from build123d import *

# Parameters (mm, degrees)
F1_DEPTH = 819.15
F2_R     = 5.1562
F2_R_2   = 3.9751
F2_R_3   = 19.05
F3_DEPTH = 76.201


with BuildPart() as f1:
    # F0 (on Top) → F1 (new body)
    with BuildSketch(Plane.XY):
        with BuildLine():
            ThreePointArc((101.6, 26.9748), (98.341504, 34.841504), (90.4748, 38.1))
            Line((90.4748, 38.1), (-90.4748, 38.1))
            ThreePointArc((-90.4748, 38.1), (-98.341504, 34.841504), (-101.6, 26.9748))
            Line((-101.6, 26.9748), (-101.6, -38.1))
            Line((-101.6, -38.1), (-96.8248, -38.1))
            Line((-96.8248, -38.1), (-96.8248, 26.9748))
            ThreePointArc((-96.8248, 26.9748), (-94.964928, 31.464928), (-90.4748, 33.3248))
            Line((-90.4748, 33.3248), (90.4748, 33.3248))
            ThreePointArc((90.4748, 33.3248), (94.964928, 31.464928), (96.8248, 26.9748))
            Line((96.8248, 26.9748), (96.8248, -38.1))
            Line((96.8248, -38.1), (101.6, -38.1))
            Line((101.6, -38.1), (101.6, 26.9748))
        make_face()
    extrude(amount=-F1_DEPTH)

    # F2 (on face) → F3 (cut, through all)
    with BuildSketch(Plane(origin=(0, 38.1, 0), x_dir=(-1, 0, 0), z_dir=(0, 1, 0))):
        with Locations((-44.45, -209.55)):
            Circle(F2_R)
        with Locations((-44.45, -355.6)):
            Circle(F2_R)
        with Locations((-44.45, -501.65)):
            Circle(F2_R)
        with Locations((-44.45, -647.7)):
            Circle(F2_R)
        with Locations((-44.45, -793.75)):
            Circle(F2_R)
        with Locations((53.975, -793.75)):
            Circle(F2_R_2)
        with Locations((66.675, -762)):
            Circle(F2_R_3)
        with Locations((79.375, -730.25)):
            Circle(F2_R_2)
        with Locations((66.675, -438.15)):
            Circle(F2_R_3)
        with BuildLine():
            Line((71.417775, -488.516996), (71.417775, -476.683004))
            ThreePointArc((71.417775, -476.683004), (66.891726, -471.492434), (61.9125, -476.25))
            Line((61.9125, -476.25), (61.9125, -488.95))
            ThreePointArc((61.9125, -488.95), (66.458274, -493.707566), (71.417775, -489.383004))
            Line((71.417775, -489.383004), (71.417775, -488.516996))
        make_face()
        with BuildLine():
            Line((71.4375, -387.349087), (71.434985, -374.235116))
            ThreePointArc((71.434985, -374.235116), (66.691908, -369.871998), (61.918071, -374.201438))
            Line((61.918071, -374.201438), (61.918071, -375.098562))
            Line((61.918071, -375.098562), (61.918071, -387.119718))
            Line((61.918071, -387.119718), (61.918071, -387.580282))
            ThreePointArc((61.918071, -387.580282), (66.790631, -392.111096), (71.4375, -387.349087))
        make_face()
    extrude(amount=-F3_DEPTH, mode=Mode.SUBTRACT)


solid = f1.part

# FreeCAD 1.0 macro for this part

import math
import FreeCAD as App
import Part
import Sketcher
from FreeCAD import Vector
Q = App.Units.Quantity

doc = App.newDocument("Part")
body = doc.addObject("PartDesign::Body", "Body")

# Sketch on XY plane
sketch1 = body.newObject("Sketcher::SketchObject", "Sketch")
sketch1.AttachmentSupport = (doc.getObject("XY_Plane"), [""])
sketch1.MapMode = "FlatFace"
sketch1.addGeometry([
    Part.ArcOfCircle(Part.Circle(Vector(90.5, 27, 0), Vector(0, 0, 1), 11.1), math.radians(0), math.radians(90)),  # 0
    Part.LineSegment(Vector(90.5, 38.1, 0), Vector(-90.5, 38.1, 0)),  # 1
    Part.ArcOfCircle(Part.Circle(Vector(-90.5, 27, 0), Vector(0, 0, 1), 11.1), math.radians(90), math.radians(180)),  # 2
    Part.LineSegment(Vector(-101.6, 27, 0), Vector(-101.6, -38.1, 0)),  # 3
    Part.LineSegment(Vector(-101.6, -38.1, 0), Vector(-96.8, -38.1, 0)),  # 4
    Part.LineSegment(Vector(-96.8, -38.1, 0), Vector(-96.8, 27, 0)),  # 5
    Part.ArcOfCircle(Part.Circle(Vector(-90.5, 27, 0), Vector(0, 0, 1), 6.4), math.radians(90), math.radians(180)),  # 6
    Part.LineSegment(Vector(-90.5, 33.3, 0), Vector(90.5, 33.3, 0)),  # 7
    Part.ArcOfCircle(Part.Circle(Vector(90.5, 27, 0), Vector(0, 0, 1), 6.4), math.radians(0), math.radians(90)),  # 8
    Part.LineSegment(Vector(96.8, 27, 0), Vector(96.8, -38.1, 0)),  # 9
    Part.LineSegment(Vector(96.8, -38.1, 0), Vector(101.6, -38.1, 0)),  # 10
    Part.LineSegment(Vector(101.6, -38.1, 0), Vector(101.6, 27, 0)),  # 11
], False)
sketch1.addConstraint([
    Sketcher.Constraint("Tangent", 0, 2, 1, 1),
    Sketcher.Constraint("Tangent", 1, 2, 2, 1),
    Sketcher.Constraint("Tangent", 2, 2, 3, 1),
    Sketcher.Constraint("Coincident", 3, 2, 4, 1),
    Sketcher.Constraint("Coincident", 4, 2, 5, 1),
    Sketcher.Constraint("Tangent", 5, 2, 6, 2),
    Sketcher.Constraint("Tangent", 6, 1, 7, 1),
    Sketcher.Constraint("Tangent", 7, 2, 8, 2),
    Sketcher.Constraint("Tangent", 8, 1, 9, 1),
    Sketcher.Constraint("Coincident", 9, 2, 10, 1),
    Sketcher.Constraint("Coincident", 10, 2, 11, 1),
    Sketcher.Constraint("Tangent", 11, 2, 0, 1),
    Sketcher.Constraint("Horizontal", 1),
    Sketcher.Constraint("Vertical", 3),
    Sketcher.Constraint("Horizontal", 4),
    Sketcher.Constraint("Vertical", 5),
    Sketcher.Constraint("Horizontal", 7),
    Sketcher.Constraint("Vertical", 9),
    Sketcher.Constraint("Horizontal", 10),
    Sketcher.Constraint("Vertical", 11),
    Sketcher.Constraint("Coincident", 6, 3, 2, 3),
    Sketcher.Constraint("Coincident", 8, 3, 0, 3),
    Sketcher.Constraint("Equal", 0, 2),
    Sketcher.Constraint("Symmetric", 4, 2, 9, 2, -2),
    Sketcher.Constraint("Radius", 6, Q("0.25 in")),
    Sketcher.Constraint("DistanceX", 2, 2, -1, 1, Q("4 in")),
    Sketcher.Constraint("Radius", 0, Q("0.438 in")),
    Sketcher.Constraint("DistanceY", 3, 2, 1, 2, Q("3 in")),
    Sketcher.Constraint("DistanceY", -1, 1, 0, 2, Q("1.5 in")),
])
pad1 = body.newObject("PartDesign::Pad", "Pad")
pad1.Profile = sketch1
pad1.Length = Q("32.25 in")
pad1.Reversed = True

# Sketch on XZ plane
sketch2 = body.newObject("Sketcher::SketchObject", "Sketch001")
sketch2.AttachmentSupport = (doc.getObject("XZ_Plane"), [""])
sketch2.MapMode = "FlatFace"
sketch2.AttachmentOffset = App.Placement(Vector(0, 0, -1.5 * 25.4), App.Rotation())
sketch2.addGeometry([
    Part.Circle(Vector(44.5, -209.6, 0), Vector(0, 0, 1), 5.2),  # 0
    Part.Circle(Vector(44.5, -355.6, 0), Vector(0, 0, 1), 5.2),  # 1
    Part.Circle(Vector(44.5, -501.6, 0), Vector(0, 0, 1), 5.2),  # 2
    Part.Circle(Vector(44.5, -647.7, 0), Vector(0, 0, 1), 5.2),  # 3
    Part.Circle(Vector(44.5, -793.8, 0), Vector(0, 0, 1), 5.2),  # 4
    Part.Circle(Vector(-54, -793.8, 0), Vector(0, 0, 1), 4),  # 5
    Part.Circle(Vector(-66.7, -762, 0), Vector(0, 0, 1), 19.1),  # 6
    Part.Circle(Vector(-79.4, -730.2, 0), Vector(0, 0, 1), 4),  # 7
    Part.Circle(Vector(-66.7, -438.1, 0), Vector(0, 0, 1), 19.1),  # 8
    Part.ArcOfCircle(Part.Circle(Vector(-66.7, -476.3, 0), Vector(0, 0, 1), 4.8), math.radians(0), math.radians(185)),  # 9
    Part.LineSegment(Vector(-61.9, -476.2, 0), Vector(-61.9, -488.9, 0)),  # 10
    Part.ArcOfCircle(Part.Circle(Vector(-66.7, -488.9, 0), Vector(0, 0, 1), 4.8), math.radians(-175), math.radians(0)),  # 11
    Part.LineSegment(Vector(-71.4, -489.4, 0), Vector(-71.4, -476.7, 0)),  # 12
    Part.LineSegment(Vector(-71.4, -387.3, 0), Vector(-71.4, -374.2, 0)),  # 13
    Part.ArcOfCircle(Part.Circle(Vector(-66.7, -374.6, 0), Vector(0, 0, 1), 4.8), math.radians(5), math.radians(175)),  # 14
    Part.LineSegment(Vector(-61.9, -374.2, 0), Vector(-61.9, -387.6, 0)),  # 15
    Part.ArcOfCircle(Part.Circle(Vector(-66.7, -387.4, 0), Vector(0, 0, 1), 4.8), math.radians(180), math.radians(357)),  # 16
], False)
sketch2.addConstraint([
    Sketcher.Constraint("Tangent", 9, 1, 10, 1),
    Sketcher.Constraint("Tangent", 10, 2, 11, 2),
    Sketcher.Constraint("Coincident", 11, 1, 12, 1),
    Sketcher.Constraint("Coincident", 12, 2, 9, 2),
    Sketcher.Constraint("Coincident", 13, 2, 14, 2),
    Sketcher.Constraint("Coincident", 14, 1, 15, 1),
    Sketcher.Constraint("Coincident", 15, 2, 16, 2),
    Sketcher.Constraint("Tangent", 16, 1, 13, 1),
    Sketcher.Constraint("Vertical", 10),
    Sketcher.Constraint("Vertical", 12),
    Sketcher.Constraint("Vertical", 15),
    Sketcher.Constraint("Equal", 0, 1),
    Sketcher.Constraint("Equal", 1, 2),
    Sketcher.Constraint("Equal", 2, 3),
    Sketcher.Constraint("Equal", 3, 4),
    Sketcher.Constraint("Equal", 5, 7),
    Sketcher.Constraint("Equal", 6, 8),
    Sketcher.Constraint("Equal", 9, 11),
    Sketcher.Constraint("Equal", 11, 16),
    Sketcher.Constraint("Horizontal", 4, 3, 5, 3),
    Sketcher.Constraint("Vertical", 0, 3, 1, 3),
    Sketcher.Constraint("Vertical", 1, 3, 2, 3),
    Sketcher.Constraint("Vertical", 2, 3, 3, 3),
    Sketcher.Constraint("Vertical", 3, 3, 4, 3),
    Sketcher.Constraint("Vertical", 6, 3, 8, 3),
    Sketcher.Constraint("Vertical", 8, 3, 9, 3),
    Sketcher.Constraint("Vertical", 11, 3, 14, 3),
    Sketcher.Constraint("Vertical", 14, 3, 16, 3),
    Sketcher.Constraint("Diameter", 6, Q("1.5 in")),
    Sketcher.Constraint("Diameter", 0, Q("0.406 in")),
    Sketcher.Constraint("Diameter", 5, Q("0.313 in")),
    Sketcher.Constraint("DistanceY", 10, 2, 10, 1, Q("0.5 in")),
    Sketcher.Constraint("DistanceY", 1, 3, -1, 1, Q("14 in")),
    Sketcher.Constraint("DistanceY", 6, 3, -1, 1, Q("30 in")),
    Sketcher.Constraint("Radius", 9, Q("0.1875 in")),
    Sketcher.Constraint("DistanceY", 4, 3, 0, 3, Q("23 in")),
    Sketcher.Constraint("DistanceX", 7, 3, 5, 3, Q("1 in")),
    Sketcher.Constraint("DistanceY", 7, 3, 2, 3, Q("9 in")),
    Sketcher.Constraint("DistanceY", 8, 3, 0, 3, Q("9 in")),
    Sketcher.Constraint("DistanceY", 2, 3, 9, 3, Q("1 in")),
    Sketcher.Constraint("DistanceY", 11, 3, 8, 3, Q("2 in")),
    Sketcher.Constraint("DistanceY", 9, 3, 14, 3, Q("4 in")),
    Sketcher.Constraint("DistanceY", 8, 3, 16, 3, Q("2 in")),
    Sketcher.Constraint("DistanceY", 3, 3, -1, 1, Q("25.5 in")),
    Sketcher.Constraint("DistanceX", 6, 3, 5, 3, Q("0.5 in")),
    Sketcher.Constraint("DistanceX", -1, 1, 0, 3, Q("1.75 in")),
    Sketcher.Constraint("DistanceY", 0, 3, -1, 1, Q("8.25 in")),
    Sketcher.Constraint("DistanceX", 5, 3, -1, 1, Q("2.125 in")),
    Sketcher.Constraint("Radius", 14, Q("4.778031 mm")),
    Sketcher.Constraint("Distance", 13, Q("13.113971 mm")),
    Sketcher.Constraint("DistanceY", 15, 2, 15, 1, Q("13.378844 mm")),
    Sketcher.Constraint("DistanceX", 13, 2, 12, 2, Q("0.01721 mm")),
])
pocket1 = body.newObject("PartDesign::Pocket", "Pocket")
pocket1.Profile = sketch2
pocket1.Type = "ThroughAll"
pocket1.Reversed = True

doc.recompute()
